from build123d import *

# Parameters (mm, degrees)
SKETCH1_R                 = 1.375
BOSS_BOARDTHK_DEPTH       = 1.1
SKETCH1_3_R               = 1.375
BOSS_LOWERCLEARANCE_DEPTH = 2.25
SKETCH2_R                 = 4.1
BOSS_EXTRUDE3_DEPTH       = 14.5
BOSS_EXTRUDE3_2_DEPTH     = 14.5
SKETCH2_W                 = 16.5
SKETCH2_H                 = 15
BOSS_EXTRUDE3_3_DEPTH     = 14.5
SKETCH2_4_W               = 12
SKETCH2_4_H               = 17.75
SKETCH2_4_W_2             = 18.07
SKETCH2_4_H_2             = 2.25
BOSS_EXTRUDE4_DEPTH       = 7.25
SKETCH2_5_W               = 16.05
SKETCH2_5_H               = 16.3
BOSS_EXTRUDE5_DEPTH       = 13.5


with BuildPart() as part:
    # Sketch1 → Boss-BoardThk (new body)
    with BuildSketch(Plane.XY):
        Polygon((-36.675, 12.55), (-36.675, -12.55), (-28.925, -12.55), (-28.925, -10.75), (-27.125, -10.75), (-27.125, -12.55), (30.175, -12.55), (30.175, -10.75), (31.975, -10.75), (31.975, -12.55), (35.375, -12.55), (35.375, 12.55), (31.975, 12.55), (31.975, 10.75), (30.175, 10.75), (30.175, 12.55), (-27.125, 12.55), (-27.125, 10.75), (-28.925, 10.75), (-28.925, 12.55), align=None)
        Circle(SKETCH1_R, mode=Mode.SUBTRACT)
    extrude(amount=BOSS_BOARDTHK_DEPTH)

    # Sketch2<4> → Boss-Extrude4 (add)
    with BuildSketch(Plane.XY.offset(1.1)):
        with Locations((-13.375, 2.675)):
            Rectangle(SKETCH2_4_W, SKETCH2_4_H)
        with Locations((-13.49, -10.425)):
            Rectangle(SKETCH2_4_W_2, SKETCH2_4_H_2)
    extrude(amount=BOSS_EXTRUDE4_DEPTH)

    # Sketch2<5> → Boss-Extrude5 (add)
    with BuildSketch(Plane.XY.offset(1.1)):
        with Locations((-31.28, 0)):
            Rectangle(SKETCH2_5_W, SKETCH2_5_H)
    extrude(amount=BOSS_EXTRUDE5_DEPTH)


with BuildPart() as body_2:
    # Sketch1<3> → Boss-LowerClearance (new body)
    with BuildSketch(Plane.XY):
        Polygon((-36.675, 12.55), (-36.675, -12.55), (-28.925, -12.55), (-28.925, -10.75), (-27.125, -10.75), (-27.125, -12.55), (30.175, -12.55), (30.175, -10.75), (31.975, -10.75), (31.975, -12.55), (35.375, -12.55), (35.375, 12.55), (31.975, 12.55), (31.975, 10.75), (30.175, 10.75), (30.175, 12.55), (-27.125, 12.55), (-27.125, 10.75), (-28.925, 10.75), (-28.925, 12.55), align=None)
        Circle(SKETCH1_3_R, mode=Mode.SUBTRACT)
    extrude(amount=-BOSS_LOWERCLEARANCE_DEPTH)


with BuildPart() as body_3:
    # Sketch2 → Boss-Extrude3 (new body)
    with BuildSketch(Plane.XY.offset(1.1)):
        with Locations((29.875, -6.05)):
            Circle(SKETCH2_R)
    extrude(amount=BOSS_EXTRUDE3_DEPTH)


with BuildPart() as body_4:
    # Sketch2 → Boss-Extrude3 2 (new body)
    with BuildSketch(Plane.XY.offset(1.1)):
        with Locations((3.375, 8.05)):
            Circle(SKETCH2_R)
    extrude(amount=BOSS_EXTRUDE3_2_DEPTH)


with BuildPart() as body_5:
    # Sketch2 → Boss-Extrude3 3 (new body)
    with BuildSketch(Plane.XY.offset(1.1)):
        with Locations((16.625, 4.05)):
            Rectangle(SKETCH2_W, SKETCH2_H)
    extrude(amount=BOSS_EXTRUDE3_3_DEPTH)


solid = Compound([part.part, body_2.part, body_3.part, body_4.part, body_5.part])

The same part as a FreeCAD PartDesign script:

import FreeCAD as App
import Part
import Sketcher

V = App.Vector

doc = App.newDocument("Part")
params = doc.addObject("Spreadsheet::Sheet", "Params")
for row, (alias, value) in enumerate([
    ("sketch1_diameter", "2.75 mm"),
    ("sketch1_width", "1.8 mm"),
    ("sketch1_width2", "57.3 mm"),
    ("sketch1_width3", "3.4 mm"),
    ("sketch1_height", "25.1 mm"),
    ("pad1_length", "1.1 mm"),
    ("sketch2_width", "12 mm"),
    ("sketch2_width2", "18.07 mm"),
    ("sketch2_height", "17.75 mm"),
    ("sketch2_height2", "2.25 mm"),
    ("pad2_length", "7.25 mm"),
    ("sketch3_height", "16.3 mm"),
    ("sketch3_width", "16.05 mm"),
    ("pad3_length", "13.5 mm"),
    ("sketch4_diameter", "2.75 mm"),
    ("sketch4_width", "1.8 mm"),
    ("sketch4_width2", "57.3 mm"),
    ("sketch4_width3", "3.4 mm"),
    ("sketch4_height", "25.1 mm"),
    ("pad4_length", "2.25 mm"),
    ("sketch5_diameter", "8.2 mm"),
    ("pad5_length", "14.5 mm"),
    ("sketch6_diameter", "8.2 mm"),
    ("pad6_length", "14.5 mm"),
    ("sketch7_height", "15 mm"),
    ("sketch7_width", "16.5 mm"),
    ("pad7_length", "14.5 mm"),
], start=1):
    params.set(f"A{row}", alias)
    params.set(f"B{row}", "=" + value)
    params.setAlias(f"B{row}", alias)

body = doc.addObject("PartDesign::Body", "Body")

sketch1 = doc.addObject("Sketcher::SketchObject", "Sketch")
body.addObject(sketch1)
sketch1.AttachmentSupport = (doc.XY_Plane, [""])
sketch1.MapMode = "FlatFace"
sketch1.addGeometry(Part.LineSegment(V(-36.7, 12.6, 0), V(-36.7, -12.6, 0)), False)
sketch1.addGeometry(Part.LineSegment(V(-36.7, -12.6, 0), V(-28.9, -12.6, 0)), False)
sketch1.addGeometry(Part.LineSegment(V(-28.9, -12.6, 0), V(-28.9, -10.8, 0)), False)
sketch1.addGeometry(Part.LineSegment(V(-28.9, -10.8, 0), V(-27.1, -10.8, 0)), False)
sketch1.addGeometry(Part.LineSegment(V(-27.1, -10.8, 0), V(-27.1, -12.6, 0)), False)
sketch1.addGeometry(Part.LineSegment(V(-27.1, -12.6, 0), V(30.2, -12.6, 0)), False)
sketch1.addGeometry(Part.LineSegment(V(30.2, -12.6, 0), V(30.2, -10.8, 0)), False)
sketch1.addGeometry(Part.LineSegment(V(30.2, -10.8, 0), V(32, -10.8, 0)), False)
sketch1.addGeometry(Part.LineSegment(V(32, -10.8, 0), V(32, -12.6, 0)), False)
sketch1.addGeometry(Part.LineSegment(V(32, -12.6, 0), V(35.4, -12.6, 0)), False)
sketch1.addGeometry(Part.LineSegment(V(35.4, -12.6, 0), V(35.4, 12.6, 0)), False)
sketch1.addGeometry(Part.LineSegment(V(35.4, 12.6, 0), V(32, 12.6, 0)), False)
sketch1.addGeometry(Part.LineSegment(V(32, 12.6, 0), V(32, 10.8, 0)), False)
sketch1.addGeometry(Part.LineSegment(V(32, 10.8, 0), V(30.2, 10.8, 0)), False)
sketch1.addGeometry(Part.LineSegment(V(30.2, 10.8, 0), V(30.2, 12.6, 0)), False)
sketch1.addGeometry(Part.LineSegment(V(30.2, 12.6, 0), V(-27.1, 12.6, 0)), False)
sketch1.addGeometry(Part.LineSegment(V(-27.1, 12.6, 0), V(-27.1, 10.8, 0)), False)
sketch1.addGeometry(Part.LineSegment(V(-27.1, 10.8, 0), V(-28.9, 10.8, 0)), False)
sketch1.addGeometry(Part.LineSegment(V(-28.9, 10.8, 0), V(-28.9, 12.6, 0)), False)
sketch1.addGeometry(Part.LineSegment(V(-28.9, 12.6, 0), V(-36.7, 12.6, 0)), False)
sketch1.addGeometry(Part.Circle(V(0, 0, 0), V(0, 0, 1), 1.4), False)
sketch1.addConstraint(Sketcher.Constraint("Coincident", 0, 2, 1, 1))
sketch1.addConstraint(Sketcher.Constraint("Coincident", 1, 2, 2, 1))
sketch1.addConstraint(Sketcher.Constraint("Coincident", 2, 2, 3, 1))
sketch1.addConstraint(Sketcher.Constraint("Coincident", 3, 2, 4, 1))
sketch1.addConstraint(Sketcher.Constraint("Coincident", 4, 2, 5, 1))
sketch1.addConstraint(Sketcher.Constraint("Coincident", 5, 2, 6, 1))
sketch1.addConstraint(Sketcher.Constraint("Coincident", 6, 2, 7, 1))
sketch1.addConstraint(Sketcher.Constraint("Coincident", 7, 2, 8, 1))
sketch1.addConstraint(Sketcher.Constraint("Coincident", 8, 2, 9, 1))
sketch1.addConstraint(Sketcher.Constraint("Coincident", 9, 2, 10, 1))
sketch1.addConstraint(Sketcher.Constraint("Coincident", 10, 2, 11, 1))
sketch1.addConstraint(Sketcher.Constraint("Coincident", 11, 2, 12, 1))
sketch1.addConstraint(Sketcher.Constraint("Coincident", 12, 2, 13, 1))
sketch1.addConstraint(Sketcher.Constraint("Coincident", 13, 2, 14, 1))
sketch1.addConstraint(Sketcher.Constraint("Coincident", 14, 2, 15, 1))
sketch1.addConstraint(Sketcher.Constraint("Coincident", 15, 2, 16, 1))
sketch1.addConstraint(Sketcher.Constraint("Coincident", 16, 2, 17, 1))
sketch1.addConstraint(Sketcher.Constraint("Coincident", 17, 2, 18, 1))
sketch1.addConstraint(Sketcher.Constraint("Coincident", 18, 2, 19, 1))
sketch1.addConstraint(Sketcher.Constraint("Coincident", 19, 2, 0, 1))
sketch1.addConstraint(Sketcher.Constraint("Vertical", 0))
sketch1.addConstraint(Sketcher.Constraint("Horizontal", 1))
sketch1.addConstraint(Sketcher.Constraint("Vertical", 2))
sketch1.addConstraint(Sketcher.Constraint("Horizontal", 3))
sketch1.addConstraint(Sketcher.Constraint("Vertical", 4))
sketch1.addConstraint(Sketcher.Constraint("Horizontal", 5))
sketch1.addConstraint(Sketcher.Constraint("Vertical", 6))
sketch1.addConstraint(Sketcher.Constraint("Horizontal", 7))
sketch1.addConstraint(Sketcher.Constraint("Vertical", 8))
sketch1.addConstraint(Sketcher.Constraint("Horizontal", 9))
sketch1.addConstraint(Sketcher.Constraint("Vertical", 10))
sketch1.addConstraint(Sketcher.Constraint("Horizontal", 11))
sketch1.addConstraint(Sketcher.Constraint("Vertical", 12))
sketch1.addConstraint(Sketcher.Constraint("Horizontal", 13))
sketch1.addConstraint(Sketcher.Constraint("Vertical", 14))
sketch1.addConstraint(Sketcher.Constraint("Horizontal", 15))
sketch1.addConstraint(Sketcher.Constraint("Vertical", 16))
sketch1.addConstraint(Sketcher.Constraint("Horizontal", 17))
sketch1.addConstraint(Sketcher.Constraint("Vertical", 18))
sketch1.addConstraint(Sketcher.Constraint("Horizontal", 19))
sketch1.addConstraint(Sketcher.Constraint("Coincident", 20, 3, -1, 1))
sketch1.addConstraint(Sketcher.Constraint("Symmetric", 8, 2, 11, 2, -1))
sketch1.addConstraint(Sketcher.Constraint("Symmetric", 6, 2, 13, 2, -1))
sketch1.addConstraint(Sketcher.Constraint("Symmetric", 4, 2, 15, 2, -1))
sketch1.addConstraint(Sketcher.Constraint("Symmetric", 2, 2, 17, 2, -1))
sketch1.addConstraint(Sketcher.Constraint("Horizontal", 1, 2, 4, 2))
sketch1.addConstraint(Sketcher.Constraint("Horizontal", 3, 2, 6, 2))
sketch1.addConstraint(Sketcher.Constraint("Horizontal", 5, 2, 8, 2))
sketch1.addConstraint(Sketcher.Constraint("Horizontal", 15, 2, 18, 2))
sketch1.addConstraint(Sketcher.Constraint("Equal", 3, 7))
sketch1.addConstraint(Sketcher.Constraint("Equal", 17, 2))
sketch1.addConstraint(Sketcher.Constraint("Diameter", 20, 2.75))
sketch1.addConstraint(Sketcher.Constraint("DistanceX", 3, 1, 3, 2, 1.8))
sketch1.addConstraint(Sketcher.Constraint("DistanceX", 5, 1, 5, 2, 57.3))
sketch1.addConstraint(Sketcher.Constraint("DistanceX", 9, 1, 9, 2, 3.4))
sketch1.addConstraint(Sketcher.Constraint("DistanceY", 0, 2, 0, 1, 25.1))
sketch1.addConstraint(Sketcher.Constraint("DistanceX", 1, 1, 1, 2, 7.75))
sketch1.addConstraint(Sketcher.Constraint("DistanceX", 0, 2, -1, 1, 36.675))
sketch1.setExpression("Constraints[51]", "Params.sketch1_diameter")
sketch1.setExpression("Constraints[52]", "Params.sketch1_width")
sketch1.setExpression("Constraints[53]", "Params.sketch1_width2")
sketch1.setExpression("Constraints[54]", "Params.sketch1_width3")
sketch1.setExpression("Constraints[55]", "Params.sketch1_height")
pad1 = doc.addObject("PartDesign::Pad", "Pad")
body.addObject(pad1)
pad1.Profile = sketch1
pad1.setExpression("Length", "Params.pad1_length")

sketch2 = doc.addObject("Sketcher::SketchObject", "Sketch001")
body.addObject(sketch2)
sketch2.AttachmentSupport = (doc.XY_Plane, [""])
sketch2.MapMode = "FlatFace"
sketch2.AttachmentOffset = App.Placement(V(0, 0, 1.1), App.Rotation())
sketch2.addGeometry(Part.LineSegment(V(-19.4, 11.6, 0), V(-19.4, -6.2, 0)), False)
sketch2.addGeometry(Part.LineSegment(V(-19.4, -6.2, 0), V(-7.4, -6.2, 0)), False)
sketch2.addGeometry(Part.LineSegment(V(-7.4, -6.2, 0), V(-7.4, 11.6, 0)), False)
sketch2.addGeometry(Part.LineSegment(V(-7.4, 11.6, 0), V(-19.4, 11.6, 0)), False)
sketch2.addGeometry(Part.LineSegment(V(-22.5, -9.3, 0), V(-22.5, -11.6, 0)), False)
sketch2.addGeometry(Part.LineSegment(V(-22.5, -11.6, 0), V(-4.5, -11.6, 0)), False)
sketch2.addGeometry(Part.LineSegment(V(-4.5, -11.6, 0), V(-4.5, -9.3, 0)), False)
sketch2.addGeometry(Part.LineSegment(V(-4.5, -9.3, 0), V(-22.5, -9.3, 0)), False)
sketch2.addConstraint(Sketcher.Constraint("Coincident", 0, 2, 1, 1))
sketch2.addConstraint(Sketcher.Constraint("Coincident", 1, 2, 2, 1))
sketch2.addConstraint(Sketcher.Constraint("Coincident", 2, 2, 3, 1))
sketch2.addConstraint(Sketcher.Constraint("Coincident", 3, 2, 0, 1))
sketch2.addConstraint(Sketcher.Constraint("Coincident", 4, 2, 5, 1))
sketch2.addConstraint(Sketcher.Constraint("Coincident", 5, 2, 6, 1))
sketch2.addConstraint(Sketcher.Constraint("Coincident", 6, 2, 7, 1))
sketch2.addConstraint(Sketcher.Constraint("Coincident", 7, 2, 4, 1))
sketch2.addConstraint(Sketcher.Constraint("Vertical", 0))
sketch2.addConstraint(Sketcher.Constraint("Horizontal", 1))
sketch2.addConstraint(Sketcher.Constraint("Vertical", 2))
sketch2.addConstraint(Sketcher.Constraint("Horizontal", 3))
sketch2.addConstraint(Sketcher.Constraint("Vertical", 4))
sketch2.addConstraint(Sketcher.Constraint("Horizontal", 5))
sketch2.addConstraint(Sketcher.Constraint("Vertical", 6))
sketch2.addConstraint(Sketcher.Constraint("Horizontal", 7))
sketch2.addConstraint(Sketcher.Constraint("DistanceX", 1, 1, 1, 2, 12.0))
sketch2.addConstraint(Sketcher.Constraint("DistanceX", 5, 1, 5, 2, 18.07))
sketch2.addConstraint(Sketcher.Constraint("DistanceY", 0, 2, 0, 1, 17.75))
sketch2.addConstraint(Sketcher.Constraint("DistanceY", 4, 2, 4, 1, 2.25))
sketch2.addConstraint(Sketcher.Constraint("DistanceY", 0, 2, -1, 1, 6.2))
sketch2.addConstraint(Sketcher.Constraint("DistanceY", 6, 2, -1, 1, 9.3))
sketch2.addConstraint(Sketcher.Constraint("DistanceX", 4, 2, 0, 2, 3.15))
sketch2.addConstraint(Sketcher.Constraint("DistanceX", 0, 2, -1, 1, 19.375))
sketch2.setExpression("Constraints[16]", "Params.sketch2_width")
sketch2.setExpression("Constraints[17]", "Params.sketch2_width2")
sketch2.setExpression("Constraints[18]", "Params.sketch2_height")
sketch2.setExpression("Constraints[19]", "Params.sketch2_height2")
pad2 = doc.addObject("PartDesign::Pad", "Pad001")
body.addObject(pad2)
pad2.Profile = sketch2
pad2.setExpression("Length", "Params.pad2_length")

sketch3 = doc.addObject("Sketcher::SketchObject", "Sketch002")
body.addObject(sketch3)
sketch3.AttachmentSupport = (doc.XY_Plane, [""])
sketch3.MapMode = "FlatFace"
sketch3.AttachmentOffset = App.Placement(V(0, 0, 1.1), App.Rotation())
sketch3.addGeometry(Part.LineSegment(V(-39, 8, 0), V(-39, -8, 0)), False)
sketch3.addGeometry(Part.LineSegment(V(-39, -8, 0), V(-23, -8, 0)), False)
sketch3.addGeometry(Part.LineSegment(V(-23, -8, 0), V(-23, 8, 0)), False)
sketch3.addGeometry(Part.LineSegment(V(-23, 8, 0), V(-39, 8, 0)), False)
sketch3.addConstraint(Sketcher.Constraint("Coincident", 0, 2, 1, 1))
sketch3.addConstraint(Sketcher.Constraint("Coincident", 1, 2, 2, 1))
sketch3.addConstraint(Sketcher.Constraint("Coincident", 2, 2, 3, 1))
sketch3.addConstraint(Sketcher.Constraint("Coincident", 3, 2, 0, 1))
sketch3.addConstraint(Sketcher.Constraint("Vertical", 0))
sketch3.addConstraint(Sketcher.Constraint("Horizontal", 1))
sketch3.addConstraint(Sketcher.Constraint("Vertical", 2))
sketch3.addConstraint(Sketcher.Constraint("Horizontal", 3))
sketch3.addConstraint(Sketcher.Constraint("DistanceY", 0, 2, 0, 1, 16.3))
sketch3.addConstraint(Sketcher.Constraint("DistanceX", 1, 1, 1, 2, 16.05))
sketch3.addConstraint(Sketcher.Constraint("DistanceY", 0, 2, -1, 1, 8.15))
sketch3.addConstraint(Sketcher.Constraint("DistanceX", 0, 2, -1, 1, 39.305))
sketch3.setExpression("Constraints[8]", "Params.sketch3_height")
sketch3.setExpression("Constraints[9]", "Params.sketch3_width")
pad3 = doc.addObject("PartDesign::Pad", "Pad002")
body.addObject(pad3)
pad3.Profile = sketch3
pad3.setExpression("Length", "Params.pad3_length")
body2 = doc.addObject("PartDesign::Body", "Body001")

sketch4 = doc.addObject("Sketcher::SketchObject", "Sketch003")
body2.addObject(sketch4)
sketch4.AttachmentSupport = (doc.getObject("XY_Plane001"), [""])
sketch4.MapMode = "FlatFace"
sketch4.addGeometry(Part.LineSegment(V(-36.7, 12.6, 0), V(-36.7, -12.6, 0)), False)
sketch4.addGeometry(Part.LineSegment(V(-36.7, -12.6, 0), V(-28.9, -12.6, 0)), False)
sketch4.addGeometry(Part.LineSegment(V(-28.9, -12.6, 0), V(-28.9, -10.8, 0)), False)
sketch4.addGeometry(Part.LineSegment(V(-28.9, -10.8, 0), V(-27.1, -10.8, 0)), False)
sketch4.addGeometry(Part.LineSegment(V(-27.1, -10.8, 0), V(-27.1, -12.6, 0)), False)
sketch4.addGeometry(Part.LineSegment(V(-27.1, -12.6, 0), V(30.2, -12.6, 0)), False)
sketch4.addGeometry(Part.LineSegment(V(30.2, -12.6, 0), V(30.2, -10.8, 0)), False)
sketch4.addGeometry(Part.LineSegment(V(30.2, -10.8, 0), V(32, -10.8, 0)), False)
sketch4.addGeometry(Part.LineSegment(V(32, -10.8, 0), V(32, -12.6, 0)), False)
sketch4.addGeometry(Part.LineSegment(V(32, -12.6, 0), V(35.4, -12.6, 0)), False)
sketch4.addGeometry(Part.LineSegment(V(35.4, -12.6, 0), V(35.4, 12.6, 0)), False)
sketch4.addGeometry(Part.LineSegment(V(35.4, 12.6, 0), V(32, 12.6, 0)), False)
sketch4.addGeometry(Part.LineSegment(V(32, 12.6, 0), V(32, 10.8, 0)), False)
sketch4.addGeometry(Part.LineSegment(V(32, 10.8, 0), V(30.2, 10.8, 0)), False)
sketch4.addGeometry(Part.LineSegment(V(30.2, 10.8, 0), V(30.2, 12.6, 0)), False)
sketch4.addGeometry(Part.LineSegment(V(30.2, 12.6, 0), V(-27.1, 12.6, 0)), False)
sketch4.addGeometry(Part.LineSegment(V(-27.1, 12.6, 0), V(-27.1, 10.8, 0)), False)
sketch4.addGeometry(Part.LineSegment(V(-27.1, 10.8, 0), V(-28.9, 10.8, 0)), False)
sketch4.addGeometry(Part.LineSegment(V(-28.9, 10.8, 0), V(-28.9, 12.6, 0)), False)
sketch4.addGeometry(Part.LineSegment(V(-28.9, 12.6, 0), V(-36.7, 12.6, 0)), False)
sketch4.addGeometry(Part.Circle(V(0, 0, 0), V(0, 0, 1), 1.4), False)
sketch4.addConstraint(Sketcher.Constraint("Coincident", 0, 2, 1, 1))
sketch4.addConstraint(Sketcher.Constraint("Coincident", 1, 2, 2, 1))
sketch4.addConstraint(Sketcher.Constraint("Coincident", 2, 2, 3, 1))
sketch4.addConstraint(Sketcher.Constraint("Coincident", 3, 2, 4, 1))
sketch4.addConstraint(Sketcher.Constraint("Coincident", 4, 2, 5, 1))
sketch4.addConstraint(Sketcher.Constraint("Coincident", 5, 2, 6, 1))
sketch4.addConstraint(Sketcher.Constraint("Coincident", 6, 2, 7, 1))
sketch4.addConstraint(Sketcher.Constraint("Coincident", 7, 2, 8, 1))
sketch4.addConstraint(Sketcher.Constraint("Coincident", 8, 2, 9, 1))
sketch4.addConstraint(Sketcher.Constraint("Coincident", 9, 2, 10, 1))
sketch4.addConstraint(Sketcher.Constraint("Coincident", 10, 2, 11, 1))
sketch4.addConstraint(Sketcher.Constraint("Coincident", 11, 2, 12, 1))
sketch4.addConstraint(Sketcher.Constraint("Coincident", 12, 2, 13, 1))
sketch4.addConstraint(Sketcher.Constraint("Coincident", 13, 2, 14, 1))
sketch4.addConstraint(Sketcher.Constraint("Coincident", 14, 2, 15, 1))
sketch4.addConstraint(Sketcher.Constraint("Coincident", 15, 2, 16, 1))
sketch4.addConstraint(Sketcher.Constraint("Coincident", 16, 2, 17, 1))
sketch4.addConstraint(Sketcher.Constraint("Coincident", 17, 2, 18, 1))
sketch4.addConstraint(Sketcher.Constraint("Coincident", 18, 2, 19, 1))
sketch4.addConstraint(Sketcher.Constraint("Coincident", 19, 2, 0, 1))
sketch4.addConstraint(Sketcher.Constraint("Vertical", 0))
sketch4.addConstraint(Sketcher.Constraint("Horizontal", 1))
sketch4.addConstraint(Sketcher.Constraint("Vertical", 2))
sketch4.addConstraint(Sketcher.Constraint("Horizontal", 3))
sketch4.addConstraint(Sketcher.Constraint("Vertical", 4))
sketch4.addConstraint(Sketcher.Constraint("Horizontal", 5))
sketch4.addConstraint(Sketcher.Constraint("Vertical", 6))
sketch4.addConstraint(Sketcher.Constraint("Horizontal", 7))
sketch4.addConstraint(Sketcher.Constraint("Vertical", 8))
sketch4.addConstraint(Sketcher.Constraint("Horizontal", 9))
sketch4.addConstraint(Sketcher.Constraint("Vertical", 10))
sketch4.addConstraint(Sketcher.Constraint("Horizontal", 11))
sketch4.addConstraint(Sketcher.Constraint("Vertical", 12))
sketch4.addConstraint(Sketcher.Constraint("Horizontal", 13))
sketch4.addConstraint(Sketcher.Constraint("Vertical", 14))
sketch4.addConstraint(Sketcher.Constraint("Horizontal", 15))
sketch4.addConstraint(Sketcher.Constraint("Vertical", 16))
sketch4.addConstraint(Sketcher.Constraint("Horizontal", 17))
sketch4.addConstraint(Sketcher.Constraint("Vertical", 18))
sketch4.addConstraint(Sketcher.Constraint("Horizontal", 19))
sketch4.addConstraint(Sketcher.Constraint("Coincident", 20, 3, -1, 1))
sketch4.addConstraint(Sketcher.Constraint("Symmetric", 8, 2, 11, 2, -1))
sketch4.addConstraint(Sketcher.Constraint("Symmetric", 6, 2, 13, 2, -1))
sketch4.addConstraint(Sketcher.Constraint("Symmetric", 4, 2, 15, 2, -1))
sketch4.addConstraint(Sketcher.Constraint("Symmetric", 2, 2, 17, 2, -1))
sketch4.addConstraint(Sketcher.Constraint("Horizontal", 1, 2, 4, 2))
sketch4.addConstraint(Sketcher.Constraint("Horizontal", 3, 2, 6, 2))
sketch4.addConstraint(Sketcher.Constraint("Horizontal", 5, 2, 8, 2))
sketch4.addConstraint(Sketcher.Constraint("Horizontal", 15, 2, 18, 2))
sketch4.addConstraint(Sketcher.Constraint("Equal", 3, 7))
sketch4.addConstraint(Sketcher.Constraint("Equal", 17, 2))
sketch4.addConstraint(Sketcher.Constraint("Diameter", 20, 2.75))
sketch4.addConstraint(Sketcher.Constraint("DistanceX", 3, 1, 3, 2, 1.8))
sketch4.addConstraint(Sketcher.Constraint("DistanceX", 5, 1, 5, 2, 57.3))
sketch4.addConstraint(Sketcher.Constraint("DistanceX", 9, 1, 9, 2, 3.4))
sketch4.addConstraint(Sketcher.Constraint("DistanceY", 0, 2, 0, 1, 25.1))
sketch4.addConstraint(Sketcher.Constraint("DistanceX", 1, 1, 1, 2, 7.75))
sketch4.addConstraint(Sketcher.Constraint("DistanceX", 0, 2, -1, 1, 36.675))
sketch4.setExpression("Constraints[51]", "Params.sketch4_diameter")
sketch4.setExpression("Constraints[52]", "Params.sketch4_width")
sketch4.setExpression("Constraints[53]", "Params.sketch4_width2")
sketch4.setExpression("Constraints[54]", "Params.sketch4_width3")
sketch4.setExpression("Constraints[55]", "Params.sketch4_height")
pad4 = doc.addObject("PartDesign::Pad", "Pad003")
body2.addObject(pad4)
pad4.Profile = sketch4
pad4.setExpression("Length", "Params.pad4_length")
pad4.Reversed = True
body3 = doc.addObject("PartDesign::Body", "Body002")

sketch5 = doc.addObject("Sketcher::SketchObject", "Sketch004")
body3.addObject(sketch5)
sketch5.AttachmentSupport = (doc.getObject("XY_Plane002"), [""])
sketch5.MapMode = "FlatFace"
sketch5.AttachmentOffset = App.Placement(V(0, 0, 1.1), App.Rotation())
sketch5.addGeometry(Part.Circle(V(29.9, -6, 0), V(0, 0, 1), 4.1), False)
sketch5.addConstraint(Sketcher.Constraint("Diameter", 0, 8.2))
sketch5.addConstraint(Sketcher.Constraint("DistanceY", 0, 3, -1, 1, 6.05))
sketch5.addConstraint(Sketcher.Constraint("DistanceX", -1, 1, 0, 3, 29.875))
sketch5.setExpression("Constraints[0]", "Params.sketch5_diameter")
pad5 = doc.addObject("PartDesign::Pad", "Pad004")
body3.addObject(pad5)
pad5.Profile = sketch5
pad5.setExpression("Length", "Params.pad5_length")
body4 = doc.addObject("PartDesign::Body", "Body003")

sketch6 = doc.addObject("Sketcher::SketchObject", "Sketch005")
body4.addObject(sketch6)
sketch6.AttachmentSupport = (doc.getObject("XY_Plane003"), [""])
sketch6.MapMode = "FlatFace"
sketch6.AttachmentOffset = App.Placement(V(0, 0, 1.1), App.Rotation())
sketch6.addGeometry(Part.Circle(V(3.4, 8.1, 0), V(0, 0, 1), 4.1), False)
sketch6.addConstraint(Sketcher.Constraint("Diameter", 0, 8.2))
sketch6.addConstraint(Sketcher.Constraint("DistanceY", -1, 1, 0, 3, 8.05))
sketch6.addConstraint(Sketcher.Constraint("DistanceX", -1, 1, 0, 3, 3.375))
sketch6.setExpression("Constraints[0]", "Params.sketch6_diameter")
pad6 = doc.addObject("PartDesign::Pad", "Pad005")
body4.addObject(pad6)
pad6.Profile = sketch6
pad6.setExpression("Length", "Params.pad6_length")
body5 = doc.addObject("PartDesign::Body", "Body004")

sketch7 = doc.addObject("Sketcher::SketchObject", "Sketch006")
body5.addObject(sketch7)
sketch7.AttachmentSupport = (doc.getObject("XY_Plane004"), [""])
sketch7.MapMode = "FlatFace"
sketch7.AttachmentOffset = App.Placement(V(0, 0, 1.1), App.Rotation())
sketch7.addGeometry(Part.LineSegment(V(8, 12, 0), V(8, -3, 0)), False)
sketch7.addGeometry(Part.LineSegment(V(8, -3, 0), V(25, -3, 0)), False)
sketch7.addGeometry(Part.LineSegment(V(25, -3, 0), V(25, 12, 0)), False)
sketch7.addGeometry(Part.LineSegment(V(25, 12, 0), V(8, 12, 0)), False)
sketch7.addConstraint(Sketcher.Constraint("Coincident", 0, 2, 1, 1))
sketch7.addConstraint(Sketcher.Constraint("Coincident", 1, 2, 2, 1))
sketch7.addConstraint(Sketcher.Constraint("Coincident", 2, 2, 3, 1))
sketch7.addConstraint(Sketcher.Constraint("Coincident", 3, 2, 0, 1))
sketch7.addConstraint(Sketcher.Constraint("Vertical", 0))
sketch7.addConstraint(Sketcher.Constraint("Horizontal", 1))
sketch7.addConstraint(Sketcher.Constraint("Vertical", 2))
sketch7.addConstraint(Sketcher.Constraint("Horizontal", 3))
sketch7.addConstraint(Sketcher.Constraint("DistanceY", 0, 2, 0, 1, 15.0))
sketch7.addConstraint(Sketcher.Constraint("DistanceX", 1, 1, 1, 2, 16.5))
sketch7.addConstraint(Sketcher.Constraint("DistanceY", 0, 2, -1, 1, 3.45))
sketch7.addConstraint(Sketcher.Constraint("DistanceX", -1, 1, 0, 2, 8.375))
sketch7.setExpression("Constraints[8]", "Params.sketch7_height")
sketch7.setExpression("Constraints[9]", "Params.sketch7_width")
pad7 = doc.addObject("PartDesign::Pad", "Pad006")
body5.addObject(pad7)
pad7.Profile = sketch7
pad7.setExpression("Length", "Params.pad7_length")

doc.recompute()
